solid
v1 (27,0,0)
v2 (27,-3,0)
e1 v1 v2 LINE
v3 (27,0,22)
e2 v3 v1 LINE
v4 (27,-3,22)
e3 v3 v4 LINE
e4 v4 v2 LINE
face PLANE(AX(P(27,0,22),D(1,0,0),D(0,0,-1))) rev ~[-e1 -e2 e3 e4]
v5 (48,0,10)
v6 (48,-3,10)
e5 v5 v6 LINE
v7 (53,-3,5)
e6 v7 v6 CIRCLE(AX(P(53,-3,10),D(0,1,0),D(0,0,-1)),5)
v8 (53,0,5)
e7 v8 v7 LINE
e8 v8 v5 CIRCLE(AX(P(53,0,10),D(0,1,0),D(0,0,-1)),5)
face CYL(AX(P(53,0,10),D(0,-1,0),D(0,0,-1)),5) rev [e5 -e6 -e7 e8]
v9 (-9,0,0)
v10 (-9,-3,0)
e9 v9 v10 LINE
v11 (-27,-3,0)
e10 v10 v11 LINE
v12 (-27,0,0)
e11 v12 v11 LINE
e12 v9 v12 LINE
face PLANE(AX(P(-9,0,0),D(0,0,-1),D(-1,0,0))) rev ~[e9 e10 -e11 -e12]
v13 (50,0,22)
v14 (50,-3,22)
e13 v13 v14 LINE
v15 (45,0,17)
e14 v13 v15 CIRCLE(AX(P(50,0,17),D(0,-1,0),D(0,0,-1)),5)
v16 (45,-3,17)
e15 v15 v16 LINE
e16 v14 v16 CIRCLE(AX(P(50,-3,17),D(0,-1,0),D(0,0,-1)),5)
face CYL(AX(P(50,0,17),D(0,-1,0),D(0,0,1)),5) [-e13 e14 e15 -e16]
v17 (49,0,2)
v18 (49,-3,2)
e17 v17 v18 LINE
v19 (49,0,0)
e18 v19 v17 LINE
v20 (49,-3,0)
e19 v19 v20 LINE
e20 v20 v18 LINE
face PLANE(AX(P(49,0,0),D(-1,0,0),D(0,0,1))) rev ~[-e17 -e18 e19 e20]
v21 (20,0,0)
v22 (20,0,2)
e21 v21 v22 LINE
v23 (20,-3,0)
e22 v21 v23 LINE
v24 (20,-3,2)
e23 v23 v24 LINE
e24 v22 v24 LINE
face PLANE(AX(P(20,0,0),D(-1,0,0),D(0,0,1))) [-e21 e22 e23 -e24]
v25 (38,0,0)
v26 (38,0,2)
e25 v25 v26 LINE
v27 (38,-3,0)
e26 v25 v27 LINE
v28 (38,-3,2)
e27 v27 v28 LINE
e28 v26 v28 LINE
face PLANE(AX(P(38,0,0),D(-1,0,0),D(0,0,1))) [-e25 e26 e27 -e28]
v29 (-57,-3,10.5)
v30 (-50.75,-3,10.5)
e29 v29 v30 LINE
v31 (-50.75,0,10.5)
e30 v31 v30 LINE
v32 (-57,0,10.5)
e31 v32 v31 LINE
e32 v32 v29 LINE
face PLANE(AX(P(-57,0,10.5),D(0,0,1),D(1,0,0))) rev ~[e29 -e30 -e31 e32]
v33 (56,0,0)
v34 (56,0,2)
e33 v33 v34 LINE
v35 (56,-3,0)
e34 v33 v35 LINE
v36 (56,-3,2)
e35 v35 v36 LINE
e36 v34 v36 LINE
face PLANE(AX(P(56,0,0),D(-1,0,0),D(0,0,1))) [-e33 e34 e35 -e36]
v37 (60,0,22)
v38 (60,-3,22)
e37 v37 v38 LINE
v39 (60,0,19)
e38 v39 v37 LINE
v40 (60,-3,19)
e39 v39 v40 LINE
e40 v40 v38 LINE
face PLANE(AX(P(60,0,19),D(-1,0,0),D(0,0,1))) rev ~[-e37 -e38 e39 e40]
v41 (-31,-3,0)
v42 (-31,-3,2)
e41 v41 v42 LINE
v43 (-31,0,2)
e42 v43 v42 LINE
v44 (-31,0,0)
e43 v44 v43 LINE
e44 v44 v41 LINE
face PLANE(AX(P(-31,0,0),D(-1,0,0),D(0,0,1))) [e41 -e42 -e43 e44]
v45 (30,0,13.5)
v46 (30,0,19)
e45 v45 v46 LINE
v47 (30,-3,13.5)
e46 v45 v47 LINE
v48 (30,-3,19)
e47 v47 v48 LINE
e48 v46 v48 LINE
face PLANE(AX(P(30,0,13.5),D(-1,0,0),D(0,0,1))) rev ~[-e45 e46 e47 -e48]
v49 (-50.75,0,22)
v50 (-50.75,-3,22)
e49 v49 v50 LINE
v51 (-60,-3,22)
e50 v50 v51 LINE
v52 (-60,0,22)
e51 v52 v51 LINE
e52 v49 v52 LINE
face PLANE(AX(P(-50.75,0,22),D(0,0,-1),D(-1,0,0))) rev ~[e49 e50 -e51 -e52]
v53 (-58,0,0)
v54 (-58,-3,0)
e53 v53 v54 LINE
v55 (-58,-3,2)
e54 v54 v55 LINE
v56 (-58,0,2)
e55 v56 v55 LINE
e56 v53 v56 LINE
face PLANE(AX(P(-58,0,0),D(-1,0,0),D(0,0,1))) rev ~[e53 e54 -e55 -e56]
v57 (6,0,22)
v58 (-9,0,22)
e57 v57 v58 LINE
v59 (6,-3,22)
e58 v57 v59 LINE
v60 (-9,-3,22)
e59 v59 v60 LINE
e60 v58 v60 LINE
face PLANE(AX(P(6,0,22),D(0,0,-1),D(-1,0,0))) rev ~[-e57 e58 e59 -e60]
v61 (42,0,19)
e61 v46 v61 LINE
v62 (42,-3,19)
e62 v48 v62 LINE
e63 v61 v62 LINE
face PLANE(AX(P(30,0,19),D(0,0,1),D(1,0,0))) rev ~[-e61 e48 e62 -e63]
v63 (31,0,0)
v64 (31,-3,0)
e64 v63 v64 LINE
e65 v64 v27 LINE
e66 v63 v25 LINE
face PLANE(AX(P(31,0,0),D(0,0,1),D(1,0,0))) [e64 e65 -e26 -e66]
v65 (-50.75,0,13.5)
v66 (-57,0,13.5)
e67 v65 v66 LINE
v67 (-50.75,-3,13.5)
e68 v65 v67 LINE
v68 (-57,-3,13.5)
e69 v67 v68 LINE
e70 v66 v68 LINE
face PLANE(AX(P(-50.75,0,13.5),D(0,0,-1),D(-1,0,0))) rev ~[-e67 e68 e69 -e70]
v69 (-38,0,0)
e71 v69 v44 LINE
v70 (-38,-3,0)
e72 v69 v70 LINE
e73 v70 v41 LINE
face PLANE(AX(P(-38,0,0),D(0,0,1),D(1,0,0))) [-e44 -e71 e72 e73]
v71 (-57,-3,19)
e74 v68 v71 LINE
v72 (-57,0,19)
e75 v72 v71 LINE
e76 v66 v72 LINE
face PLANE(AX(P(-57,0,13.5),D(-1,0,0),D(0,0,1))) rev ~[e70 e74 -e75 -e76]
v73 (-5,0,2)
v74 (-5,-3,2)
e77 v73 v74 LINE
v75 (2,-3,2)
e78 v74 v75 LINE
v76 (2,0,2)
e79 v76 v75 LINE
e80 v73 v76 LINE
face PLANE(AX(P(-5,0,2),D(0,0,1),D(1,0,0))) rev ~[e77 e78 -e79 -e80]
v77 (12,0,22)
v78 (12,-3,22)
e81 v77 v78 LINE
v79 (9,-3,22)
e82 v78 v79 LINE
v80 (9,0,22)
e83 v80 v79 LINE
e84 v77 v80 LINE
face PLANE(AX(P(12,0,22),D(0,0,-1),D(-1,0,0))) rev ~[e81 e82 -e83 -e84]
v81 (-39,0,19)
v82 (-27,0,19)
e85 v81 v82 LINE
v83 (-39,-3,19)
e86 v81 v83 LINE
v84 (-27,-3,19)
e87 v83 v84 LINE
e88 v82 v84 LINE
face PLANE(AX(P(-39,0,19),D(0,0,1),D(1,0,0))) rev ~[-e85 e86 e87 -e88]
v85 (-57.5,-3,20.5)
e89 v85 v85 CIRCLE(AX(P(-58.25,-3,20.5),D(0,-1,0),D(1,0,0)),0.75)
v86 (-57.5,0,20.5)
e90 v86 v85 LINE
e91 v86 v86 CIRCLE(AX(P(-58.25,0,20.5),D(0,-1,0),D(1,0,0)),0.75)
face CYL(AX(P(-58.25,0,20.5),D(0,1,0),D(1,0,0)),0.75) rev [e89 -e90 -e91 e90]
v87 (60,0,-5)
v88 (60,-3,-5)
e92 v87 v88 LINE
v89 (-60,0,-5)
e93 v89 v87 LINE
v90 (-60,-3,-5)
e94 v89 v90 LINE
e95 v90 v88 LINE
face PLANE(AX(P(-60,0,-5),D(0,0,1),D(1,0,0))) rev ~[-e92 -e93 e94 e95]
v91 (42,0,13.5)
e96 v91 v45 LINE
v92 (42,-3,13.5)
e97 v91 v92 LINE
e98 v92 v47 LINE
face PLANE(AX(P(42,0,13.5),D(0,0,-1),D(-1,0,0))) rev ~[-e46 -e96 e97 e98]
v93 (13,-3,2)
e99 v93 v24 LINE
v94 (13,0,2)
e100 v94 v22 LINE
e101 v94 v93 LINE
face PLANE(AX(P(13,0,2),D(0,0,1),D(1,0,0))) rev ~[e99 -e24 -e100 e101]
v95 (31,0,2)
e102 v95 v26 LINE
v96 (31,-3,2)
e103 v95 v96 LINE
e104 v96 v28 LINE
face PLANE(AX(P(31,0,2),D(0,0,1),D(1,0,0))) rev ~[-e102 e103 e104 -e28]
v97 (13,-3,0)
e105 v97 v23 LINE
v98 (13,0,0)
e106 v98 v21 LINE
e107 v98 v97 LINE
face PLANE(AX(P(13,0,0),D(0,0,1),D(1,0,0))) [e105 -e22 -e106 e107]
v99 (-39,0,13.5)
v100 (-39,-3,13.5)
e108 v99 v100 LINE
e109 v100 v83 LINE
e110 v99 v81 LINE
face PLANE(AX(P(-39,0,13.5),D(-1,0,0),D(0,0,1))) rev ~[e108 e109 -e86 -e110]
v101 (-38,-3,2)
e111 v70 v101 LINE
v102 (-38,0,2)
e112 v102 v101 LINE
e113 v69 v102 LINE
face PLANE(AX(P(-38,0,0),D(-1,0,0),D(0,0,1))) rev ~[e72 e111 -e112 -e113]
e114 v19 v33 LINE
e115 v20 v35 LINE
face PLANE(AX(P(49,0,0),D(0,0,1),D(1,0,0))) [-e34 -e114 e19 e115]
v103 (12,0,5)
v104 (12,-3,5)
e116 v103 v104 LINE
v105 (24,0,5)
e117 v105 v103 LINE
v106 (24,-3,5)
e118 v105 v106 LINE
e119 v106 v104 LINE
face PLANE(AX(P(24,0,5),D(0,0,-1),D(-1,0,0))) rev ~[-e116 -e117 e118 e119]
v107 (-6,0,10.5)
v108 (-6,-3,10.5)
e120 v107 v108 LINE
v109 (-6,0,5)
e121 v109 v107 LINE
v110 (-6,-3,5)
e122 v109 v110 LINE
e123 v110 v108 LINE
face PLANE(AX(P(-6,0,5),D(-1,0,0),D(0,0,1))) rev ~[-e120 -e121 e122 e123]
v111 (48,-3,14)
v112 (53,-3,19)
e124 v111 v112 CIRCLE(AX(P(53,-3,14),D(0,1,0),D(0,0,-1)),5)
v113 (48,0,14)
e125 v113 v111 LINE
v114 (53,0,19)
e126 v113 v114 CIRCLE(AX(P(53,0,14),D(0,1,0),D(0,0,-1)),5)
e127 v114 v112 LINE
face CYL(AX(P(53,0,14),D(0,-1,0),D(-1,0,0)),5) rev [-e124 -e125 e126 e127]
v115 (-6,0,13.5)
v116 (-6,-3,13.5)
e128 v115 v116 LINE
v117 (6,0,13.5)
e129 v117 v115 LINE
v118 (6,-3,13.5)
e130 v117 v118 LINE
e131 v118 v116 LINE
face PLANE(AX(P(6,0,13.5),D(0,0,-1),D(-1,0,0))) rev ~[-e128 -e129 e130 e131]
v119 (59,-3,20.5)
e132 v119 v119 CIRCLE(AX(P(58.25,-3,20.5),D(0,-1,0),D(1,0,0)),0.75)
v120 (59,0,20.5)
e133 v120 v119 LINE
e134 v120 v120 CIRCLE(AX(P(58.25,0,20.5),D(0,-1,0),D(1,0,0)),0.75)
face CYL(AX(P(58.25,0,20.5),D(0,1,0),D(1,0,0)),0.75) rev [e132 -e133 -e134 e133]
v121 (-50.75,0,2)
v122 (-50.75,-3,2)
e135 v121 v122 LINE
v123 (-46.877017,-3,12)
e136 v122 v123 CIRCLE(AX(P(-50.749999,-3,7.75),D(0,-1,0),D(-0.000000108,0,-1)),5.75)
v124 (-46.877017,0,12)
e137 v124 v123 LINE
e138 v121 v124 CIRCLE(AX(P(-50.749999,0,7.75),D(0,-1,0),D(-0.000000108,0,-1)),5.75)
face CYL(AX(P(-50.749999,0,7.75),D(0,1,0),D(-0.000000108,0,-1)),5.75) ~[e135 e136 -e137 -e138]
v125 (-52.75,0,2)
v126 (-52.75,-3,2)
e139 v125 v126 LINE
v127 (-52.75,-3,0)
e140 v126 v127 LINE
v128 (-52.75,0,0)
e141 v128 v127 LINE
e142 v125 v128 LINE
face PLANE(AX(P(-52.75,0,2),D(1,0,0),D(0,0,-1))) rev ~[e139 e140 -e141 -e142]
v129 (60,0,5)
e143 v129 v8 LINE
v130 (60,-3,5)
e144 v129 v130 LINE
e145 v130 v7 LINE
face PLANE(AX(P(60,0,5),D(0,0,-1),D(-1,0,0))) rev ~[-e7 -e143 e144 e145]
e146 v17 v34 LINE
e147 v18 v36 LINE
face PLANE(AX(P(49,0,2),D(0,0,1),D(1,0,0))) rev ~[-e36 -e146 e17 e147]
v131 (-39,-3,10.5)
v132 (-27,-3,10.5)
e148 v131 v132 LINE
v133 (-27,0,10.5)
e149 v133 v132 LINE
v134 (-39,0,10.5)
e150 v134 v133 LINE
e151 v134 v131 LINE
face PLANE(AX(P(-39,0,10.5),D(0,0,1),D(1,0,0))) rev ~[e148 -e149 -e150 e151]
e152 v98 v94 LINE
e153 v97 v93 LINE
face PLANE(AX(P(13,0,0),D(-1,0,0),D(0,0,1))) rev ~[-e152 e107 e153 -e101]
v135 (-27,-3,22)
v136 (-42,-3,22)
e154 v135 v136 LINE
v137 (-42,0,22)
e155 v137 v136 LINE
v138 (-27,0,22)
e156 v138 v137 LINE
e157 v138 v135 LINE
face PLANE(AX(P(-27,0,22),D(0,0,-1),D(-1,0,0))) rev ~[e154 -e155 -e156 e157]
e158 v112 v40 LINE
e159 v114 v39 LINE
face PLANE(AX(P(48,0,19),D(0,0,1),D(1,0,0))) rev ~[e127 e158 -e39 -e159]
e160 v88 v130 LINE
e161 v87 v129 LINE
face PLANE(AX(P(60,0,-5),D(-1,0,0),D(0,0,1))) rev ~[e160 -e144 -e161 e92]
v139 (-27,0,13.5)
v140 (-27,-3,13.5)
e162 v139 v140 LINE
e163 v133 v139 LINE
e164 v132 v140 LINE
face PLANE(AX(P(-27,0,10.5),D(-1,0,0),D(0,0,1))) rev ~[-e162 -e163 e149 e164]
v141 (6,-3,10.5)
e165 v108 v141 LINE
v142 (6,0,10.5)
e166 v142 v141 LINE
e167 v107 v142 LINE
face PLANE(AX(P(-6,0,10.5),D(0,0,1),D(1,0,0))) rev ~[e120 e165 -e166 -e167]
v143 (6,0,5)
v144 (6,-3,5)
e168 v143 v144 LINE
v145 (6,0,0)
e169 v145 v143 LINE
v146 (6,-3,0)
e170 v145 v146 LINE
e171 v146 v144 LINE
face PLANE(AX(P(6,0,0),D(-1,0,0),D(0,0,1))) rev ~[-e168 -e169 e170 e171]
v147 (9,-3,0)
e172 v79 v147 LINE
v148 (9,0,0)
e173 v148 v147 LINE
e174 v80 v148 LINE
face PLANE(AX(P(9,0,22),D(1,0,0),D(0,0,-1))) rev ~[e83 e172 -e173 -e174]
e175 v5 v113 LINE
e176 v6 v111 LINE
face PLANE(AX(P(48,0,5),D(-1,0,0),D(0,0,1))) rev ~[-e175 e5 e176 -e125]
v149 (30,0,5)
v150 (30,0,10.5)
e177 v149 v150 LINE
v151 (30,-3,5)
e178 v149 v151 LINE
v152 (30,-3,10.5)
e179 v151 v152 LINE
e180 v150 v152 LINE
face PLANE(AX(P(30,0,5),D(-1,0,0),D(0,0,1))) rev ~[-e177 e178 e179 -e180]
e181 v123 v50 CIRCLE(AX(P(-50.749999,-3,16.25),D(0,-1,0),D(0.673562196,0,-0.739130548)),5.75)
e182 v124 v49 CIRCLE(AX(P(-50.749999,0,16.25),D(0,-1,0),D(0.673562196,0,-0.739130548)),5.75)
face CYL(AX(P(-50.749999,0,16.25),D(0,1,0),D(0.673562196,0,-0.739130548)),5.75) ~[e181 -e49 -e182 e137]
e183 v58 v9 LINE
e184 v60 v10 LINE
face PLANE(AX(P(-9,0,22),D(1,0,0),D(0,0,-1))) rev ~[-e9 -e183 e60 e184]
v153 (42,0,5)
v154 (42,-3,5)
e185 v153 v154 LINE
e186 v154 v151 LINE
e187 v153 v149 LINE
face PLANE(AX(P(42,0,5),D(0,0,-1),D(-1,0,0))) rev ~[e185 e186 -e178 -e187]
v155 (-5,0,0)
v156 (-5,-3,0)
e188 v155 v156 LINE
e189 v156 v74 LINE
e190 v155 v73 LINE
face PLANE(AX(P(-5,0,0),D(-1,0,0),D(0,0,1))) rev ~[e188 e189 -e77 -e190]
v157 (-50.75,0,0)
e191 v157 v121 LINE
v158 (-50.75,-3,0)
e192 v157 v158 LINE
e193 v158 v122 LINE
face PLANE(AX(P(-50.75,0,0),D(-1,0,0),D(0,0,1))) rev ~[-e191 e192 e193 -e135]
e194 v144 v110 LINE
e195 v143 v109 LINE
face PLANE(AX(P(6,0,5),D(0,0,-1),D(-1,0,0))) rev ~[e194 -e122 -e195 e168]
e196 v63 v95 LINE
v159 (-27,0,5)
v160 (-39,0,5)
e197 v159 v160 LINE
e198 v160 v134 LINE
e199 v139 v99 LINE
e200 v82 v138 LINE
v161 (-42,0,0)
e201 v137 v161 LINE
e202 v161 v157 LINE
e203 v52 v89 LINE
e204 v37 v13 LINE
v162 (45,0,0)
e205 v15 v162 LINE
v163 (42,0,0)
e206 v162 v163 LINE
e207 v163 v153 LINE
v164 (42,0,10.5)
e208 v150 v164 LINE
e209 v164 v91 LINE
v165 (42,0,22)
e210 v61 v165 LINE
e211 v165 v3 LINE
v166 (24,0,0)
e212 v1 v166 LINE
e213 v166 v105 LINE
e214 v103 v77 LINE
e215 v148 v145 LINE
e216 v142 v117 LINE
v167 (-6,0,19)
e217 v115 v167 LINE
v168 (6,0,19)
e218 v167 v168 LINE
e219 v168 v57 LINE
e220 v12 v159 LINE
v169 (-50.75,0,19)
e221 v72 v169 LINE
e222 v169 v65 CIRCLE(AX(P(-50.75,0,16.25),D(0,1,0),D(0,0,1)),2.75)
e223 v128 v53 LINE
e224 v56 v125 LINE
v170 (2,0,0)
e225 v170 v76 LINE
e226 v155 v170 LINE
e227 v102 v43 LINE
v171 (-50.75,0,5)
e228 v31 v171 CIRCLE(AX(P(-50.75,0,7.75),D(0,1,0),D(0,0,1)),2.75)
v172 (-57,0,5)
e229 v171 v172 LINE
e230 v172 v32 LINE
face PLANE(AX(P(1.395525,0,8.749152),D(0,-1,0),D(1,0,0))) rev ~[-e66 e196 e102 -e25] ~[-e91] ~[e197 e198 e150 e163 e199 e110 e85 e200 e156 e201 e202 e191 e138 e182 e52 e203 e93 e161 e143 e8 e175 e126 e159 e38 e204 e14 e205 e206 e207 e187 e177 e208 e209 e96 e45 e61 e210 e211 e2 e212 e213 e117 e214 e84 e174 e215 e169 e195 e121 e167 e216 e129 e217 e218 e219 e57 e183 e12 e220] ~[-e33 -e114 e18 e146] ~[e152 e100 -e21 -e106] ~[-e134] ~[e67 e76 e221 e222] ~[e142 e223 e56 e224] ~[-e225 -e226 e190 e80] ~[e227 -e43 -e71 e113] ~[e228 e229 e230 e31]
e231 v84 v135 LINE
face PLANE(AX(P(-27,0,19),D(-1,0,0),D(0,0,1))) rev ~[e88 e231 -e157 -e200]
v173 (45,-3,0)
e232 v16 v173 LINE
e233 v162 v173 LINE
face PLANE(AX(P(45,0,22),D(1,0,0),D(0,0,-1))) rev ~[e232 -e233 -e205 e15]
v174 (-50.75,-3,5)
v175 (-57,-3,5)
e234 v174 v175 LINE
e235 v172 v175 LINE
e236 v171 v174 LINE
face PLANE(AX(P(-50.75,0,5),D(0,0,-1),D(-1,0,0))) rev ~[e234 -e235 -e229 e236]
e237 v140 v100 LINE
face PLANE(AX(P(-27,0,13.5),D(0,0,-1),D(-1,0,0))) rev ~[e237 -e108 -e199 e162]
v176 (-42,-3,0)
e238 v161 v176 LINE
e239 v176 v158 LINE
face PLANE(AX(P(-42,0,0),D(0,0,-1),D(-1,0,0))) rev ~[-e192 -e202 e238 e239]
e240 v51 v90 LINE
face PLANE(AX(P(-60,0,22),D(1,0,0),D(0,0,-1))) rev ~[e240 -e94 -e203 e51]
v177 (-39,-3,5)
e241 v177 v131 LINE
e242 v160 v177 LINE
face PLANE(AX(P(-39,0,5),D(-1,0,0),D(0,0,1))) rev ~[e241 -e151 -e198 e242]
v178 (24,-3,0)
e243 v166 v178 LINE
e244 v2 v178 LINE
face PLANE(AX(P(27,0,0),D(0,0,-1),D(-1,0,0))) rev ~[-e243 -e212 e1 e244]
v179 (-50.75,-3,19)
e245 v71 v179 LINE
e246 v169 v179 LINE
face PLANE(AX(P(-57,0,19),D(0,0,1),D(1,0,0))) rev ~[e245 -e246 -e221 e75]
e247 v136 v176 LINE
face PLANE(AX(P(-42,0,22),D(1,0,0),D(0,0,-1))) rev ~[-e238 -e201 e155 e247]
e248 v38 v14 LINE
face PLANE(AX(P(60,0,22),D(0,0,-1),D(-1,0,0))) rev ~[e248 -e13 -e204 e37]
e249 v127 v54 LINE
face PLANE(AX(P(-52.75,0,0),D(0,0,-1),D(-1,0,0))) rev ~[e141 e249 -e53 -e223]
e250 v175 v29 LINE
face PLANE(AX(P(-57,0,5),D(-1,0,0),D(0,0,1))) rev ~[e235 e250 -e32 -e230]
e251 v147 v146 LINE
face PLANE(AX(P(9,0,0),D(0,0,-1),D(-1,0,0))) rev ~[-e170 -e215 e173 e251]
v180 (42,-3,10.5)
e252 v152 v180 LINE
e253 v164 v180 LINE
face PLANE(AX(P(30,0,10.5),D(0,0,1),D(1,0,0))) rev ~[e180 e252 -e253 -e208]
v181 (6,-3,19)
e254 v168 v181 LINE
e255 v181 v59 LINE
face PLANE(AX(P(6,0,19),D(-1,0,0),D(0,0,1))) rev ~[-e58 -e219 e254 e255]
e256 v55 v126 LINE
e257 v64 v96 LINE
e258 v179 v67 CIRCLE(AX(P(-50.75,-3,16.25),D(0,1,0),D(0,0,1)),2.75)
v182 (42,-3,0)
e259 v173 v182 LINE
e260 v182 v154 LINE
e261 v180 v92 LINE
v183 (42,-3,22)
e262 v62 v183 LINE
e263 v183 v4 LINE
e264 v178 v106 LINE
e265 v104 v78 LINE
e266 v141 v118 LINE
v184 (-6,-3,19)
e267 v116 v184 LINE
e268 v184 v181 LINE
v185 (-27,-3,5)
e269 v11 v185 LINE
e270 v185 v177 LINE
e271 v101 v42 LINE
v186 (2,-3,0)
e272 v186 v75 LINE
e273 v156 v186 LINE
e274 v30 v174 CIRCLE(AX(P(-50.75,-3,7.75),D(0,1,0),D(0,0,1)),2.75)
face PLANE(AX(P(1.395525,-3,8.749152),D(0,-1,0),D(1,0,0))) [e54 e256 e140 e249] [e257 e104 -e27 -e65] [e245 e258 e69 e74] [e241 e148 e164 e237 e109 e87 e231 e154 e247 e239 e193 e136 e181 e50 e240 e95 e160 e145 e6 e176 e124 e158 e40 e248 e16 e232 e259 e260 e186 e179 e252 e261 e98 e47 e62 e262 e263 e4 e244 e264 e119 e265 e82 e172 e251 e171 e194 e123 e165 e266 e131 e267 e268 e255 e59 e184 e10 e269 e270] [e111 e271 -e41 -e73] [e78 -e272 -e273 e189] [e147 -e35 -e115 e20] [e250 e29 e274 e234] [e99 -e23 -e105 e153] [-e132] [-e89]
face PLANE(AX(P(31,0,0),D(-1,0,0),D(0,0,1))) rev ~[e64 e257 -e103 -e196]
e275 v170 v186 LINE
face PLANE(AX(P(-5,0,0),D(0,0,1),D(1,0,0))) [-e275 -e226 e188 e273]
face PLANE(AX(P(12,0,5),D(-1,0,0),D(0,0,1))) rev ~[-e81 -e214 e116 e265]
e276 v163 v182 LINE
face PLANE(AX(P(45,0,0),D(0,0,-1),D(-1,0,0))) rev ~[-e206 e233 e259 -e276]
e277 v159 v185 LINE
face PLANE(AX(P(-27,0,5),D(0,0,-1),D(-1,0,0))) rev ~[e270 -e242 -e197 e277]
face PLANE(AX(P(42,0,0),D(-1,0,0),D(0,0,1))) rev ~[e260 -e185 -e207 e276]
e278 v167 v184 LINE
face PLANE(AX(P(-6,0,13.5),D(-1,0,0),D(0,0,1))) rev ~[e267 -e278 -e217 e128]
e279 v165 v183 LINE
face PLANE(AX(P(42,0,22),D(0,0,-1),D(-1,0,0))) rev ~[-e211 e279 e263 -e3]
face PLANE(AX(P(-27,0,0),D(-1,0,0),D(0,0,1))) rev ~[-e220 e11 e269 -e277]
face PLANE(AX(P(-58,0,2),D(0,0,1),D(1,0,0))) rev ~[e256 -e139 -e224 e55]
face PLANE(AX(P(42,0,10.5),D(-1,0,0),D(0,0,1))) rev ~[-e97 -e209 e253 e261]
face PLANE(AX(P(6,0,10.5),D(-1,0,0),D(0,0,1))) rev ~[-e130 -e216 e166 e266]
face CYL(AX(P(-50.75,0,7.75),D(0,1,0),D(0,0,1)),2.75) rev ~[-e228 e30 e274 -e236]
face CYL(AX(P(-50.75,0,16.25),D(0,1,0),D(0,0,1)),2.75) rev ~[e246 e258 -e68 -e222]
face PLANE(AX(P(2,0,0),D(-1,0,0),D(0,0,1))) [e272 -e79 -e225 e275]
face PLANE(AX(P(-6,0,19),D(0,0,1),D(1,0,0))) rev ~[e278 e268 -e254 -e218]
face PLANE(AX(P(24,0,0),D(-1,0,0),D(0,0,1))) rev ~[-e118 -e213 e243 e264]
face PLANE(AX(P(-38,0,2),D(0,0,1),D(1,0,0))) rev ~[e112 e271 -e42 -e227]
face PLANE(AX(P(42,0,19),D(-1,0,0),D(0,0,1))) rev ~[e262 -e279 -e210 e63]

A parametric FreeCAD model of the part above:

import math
import FreeCAD as App
import Part
import Sketcher
from FreeCAD import Vector


def edges_at(feature, points):
    """Names of the edges that pass closest to the given points."""
    edges = feature.Shape.Edges
    near = lambda p: min(range(len(edges)), key=lambda i: edges[i].distToShape(Part.Vertex(*p))[0])
    return sorted({f"Edge{near(p) + 1}" for p in points})

doc = App.newDocument("Part")
body = doc.addObject("PartDesign::Body", "Body")

# Sketch on XZ plane
sketch1 = doc.addObject("Sketcher::SketchObject", "Sketch")
body.addObject(sketch1)
sketch1.AttachmentSupport = (doc.XZ_Plane, [""])
sketch1.MapMode = "FlatFace"
sketch1.addGeometry(Part.LineSegment(Vector(-60, -5, 0), Vector(60, -5, 0)), False)
sketch1.addGeometry(Part.LineSegment(Vector(60, -5, 0), Vector(60, 5, 0)), False)
sketch1.addGeometry(Part.LineSegment(Vector(60, 5, 0), Vector(48, 5, 0)), False)
sketch1.addGeometry(Part.LineSegment(Vector(48, 5, 0), Vector(48, 19, 0)), False)
sketch1.addGeometry(Part.LineSegment(Vector(48, 19, 0), Vector(60, 19, 0)), False)
sketch1.addGeometry(Part.LineSegment(Vector(60, 19, 0), Vector(60, 22, 0)), False)
sketch1.addGeometry(Part.LineSegment(Vector(60, 22, 0), Vector(45, 22, 0)), False)
sketch1.addGeometry(Part.LineSegment(Vector(45, 22, 0), Vector(45, 0, 0)), False)
sketch1.addGeometry(Part.LineSegment(Vector(45, 0, 0), Vector(42, 0, 0)), False)
sketch1.addGeometry(Part.LineSegment(Vector(42, 0, 0), Vector(42, 5, 0)), False)
sketch1.addGeometry(Part.LineSegment(Vector(42, 5, 0), Vector(30, 5, 0)), False)
sketch1.addGeometry(Part.LineSegment(Vector(30, 5, 0), Vector(30, 10.5, 0)), False)
sketch1.addGeometry(Part.LineSegment(Vector(30, 10.5, 0), Vector(42, 10.5, 0)), False)
sketch1.addGeometry(Part.LineSegment(Vector(42, 10.5, 0), Vector(42, 13.5, 0)), False)
sketch1.addGeometry(Part.LineSegment(Vector(42, 13.5, 0), Vector(30, 13.5, 0)), False)
sketch1.addGeometry(Part.LineSegment(Vector(30, 13.5, 0), Vector(30, 19, 0)), False)
sketch1.addGeometry(Part.LineSegment(Vector(30, 19, 0), Vector(42, 19, 0)), False)
sketch1.addGeometry(Part.LineSegment(Vector(42, 19, 0), Vector(42, 22, 0)), False)
sketch1.addGeometry(Part.LineSegment(Vector(42, 22, 0), Vector(27, 22, 0)), False)
sketch1.addGeometry(Part.LineSegment(Vector(27, 22, 0), Vector(27, 0, 0)), False)
sketch1.addGeometry(Part.LineSegment(Vector(27, 0, 0), Vector(24, 0, 0)), False)
sketch1.addGeometry(Part.LineSegment(Vector(24, 0, 0), Vector(24, 5, 0)), False)
sketch1.addGeometry(Part.LineSegment(Vector(24, 5, 0), Vector(12, 5, 0)), False)
sketch1.addGeometry(Part.LineSegment(Vector(12, 5, 0), Vector(12, 22, 0)), False)
sketch1.addGeometry(Part.LineSegment(Vector(12, 22, 0), Vector(9, 22, 0)), False)
sketch1.addGeometry(Part.LineSegment(Vector(9, 22, 0), Vector(9, 0, 0)), False)
sketch1.addGeometry(Part.LineSegment(Vector(9, 0, 0), Vector(6, 0, 0)), False)
sketch1.addGeometry(Part.LineSegment(Vector(6, 0, 0), Vector(6, 5, 0)), False)
sketch1.addGeometry(Part.LineSegment(Vector(6, 5, 0), Vector(-6, 5, 0)), False)
sketch1.addGeometry(Part.LineSegment(Vector(-6, 5, 0), Vector(-6, 10.5, 0)), False)
sketch1.addGeometry(Part.LineSegment(Vector(-6, 10.5, 0), Vector(6, 10.5, 0)), False)
sketch1.addGeometry(Part.LineSegment(Vector(6, 10.5, 0), Vector(6, 13.5, 0)), False)
sketch1.addGeometry(Part.LineSegment(Vector(6, 13.5, 0), Vector(-6, 13.5, 0)), False)
sketch1.addGeometry(Part.LineSegment(Vector(-6, 13.5, 0), Vector(-6, 19, 0)), False)
sketch1.addGeometry(Part.LineSegment(Vector(-6, 19, 0), Vector(6, 19, 0)), False)
sketch1.addGeometry(Part.LineSegment(Vector(6, 19, 0), Vector(6, 22, 0)), False)
sketch1.addGeometry(Part.LineSegment(Vector(6, 22, 0), Vector(-9, 22, 0)), False)
sketch1.addGeometry(Part.LineSegment(Vector(-9, 22, 0), Vector(-9, 0, 0)), False)
sketch1.addGeometry(Part.LineSegment(Vector(-9, 0, 0), Vector(-27, 0, 0)), False)
sketch1.addGeometry(Part.LineSegment(Vector(-27, 0, 0), Vector(-27, 5, 0)), False)
sketch1.addGeometry(Part.LineSegment(Vector(-27, 5, 0), Vector(-39, 5, 0)), False)
sketch1.addGeometry(Part.LineSegment(Vector(-39, 5, 0), Vector(-39, 10.5, 0)), False)
sketch1.addGeometry(Part.LineSegment(Vector(-39, 10.5, 0), Vector(-27, 10.5, 0)), False)
sketch1.addGeometry(Part.LineSegment(Vector(-27, 10.5, 0), Vector(-27, 13.5, 0)), False)
sketch1.addGeometry(Part.LineSegment(Vector(-27, 13.5, 0), Vector(-39, 13.5, 0)), False)
sketch1.addGeometry(Part.LineSegment(Vector(-39, 13.5, 0), Vector(-39, 19, 0)), False)
sketch1.addGeometry(Part.LineSegment(Vector(-39, 19, 0), Vector(-27, 19, 0)), False)
sketch1.addGeometry(Part.LineSegment(Vector(-27, 19, 0), Vector(-27, 22, 0)), False)
sketch1.addGeometry(Part.LineSegment(Vector(-27, 22, 0), Vector(-42, 22, 0)), False)
sketch1.addGeometry(Part.LineSegment(Vector(-42, 22, 0), Vector(-42, 0, 0)), False)
sketch1.addGeometry(Part.LineSegment(Vector(-42, 0, 0), Vector(-50.75, 0, 0)), False)
sketch1.addGeometry(Part.LineSegment(Vector(-50.75, 0, 0), Vector(-50.75, 2, 0)), False)
sketch1.addGeometry(Part.ArcOfCircle(Part.Circle(Vector(-50.749999, 7.75, 0), Vector(0, 0, 1), 5.75), math.radians(-90.000006), math.radians(47.657404)), False)
sketch1.addGeometry(Part.ArcOfCircle(Part.Circle(Vector(-50.749999, 16.25, 0), Vector(0, 0, 1), 5.75), math.radians(-47.657404), math.radians(90.000006)), False)
sketch1.addGeometry(Part.LineSegment(Vector(-50.75, 22, 0), Vector(-60, 22, 0)), False)
sketch1.addGeometry(Part.LineSegment(Vector(-60, 22, 0), Vector(-60, -5, 0)), False)
sketch1.addGeometry(Part.LineSegment(Vector(-52.75, 2, 0), Vector(-52.75, 0, 0)), False)
sketch1.addGeometry(Part.LineSegment(Vector(-52.75, 0, 0), Vector(-58, 0, 0)), False)
sketch1.addGeometry(Part.LineSegment(Vector(-58, 0, 0), Vector(-58, 2, 0)), False)
sketch1.addGeometry(Part.LineSegment(Vector(-58, 2, 0), Vector(-52.75, 2, 0)), False)
sketch1.addGeometry(Part.LineSegment(Vector(-31, 0, 0), Vector(-38, 0, 0)), False)
sketch1.addGeometry(Part.LineSegment(Vector(-38, 0, 0), Vector(-38, 2, 0)), False)
sketch1.addGeometry(Part.LineSegment(Vector(-38, 2, 0), Vector(-31, 2, 0)), False)
sketch1.addGeometry(Part.LineSegment(Vector(-31, 2, 0), Vector(-31, 0, 0)), False)
sketch1.addGeometry(Part.LineSegment(Vector(2, 0, 0), Vector(-5, 0, 0)), False)
sketch1.addGeometry(Part.LineSegment(Vector(-5, 0, 0), Vector(-5, 2, 0)), False)
sketch1.addGeometry(Part.LineSegment(Vector(-5, 2, 0), Vector(2, 2, 0)), False)
sketch1.addGeometry(Part.LineSegment(Vector(2, 2, 0), Vector(2, 0, 0)), False)
sketch1.addGeometry(Part.LineSegment(Vector(-57, 5, 0), Vector(-57, 10.5, 0)), False)
sketch1.addGeometry(Part.LineSegment(Vector(-57, 10.5, 0), Vector(-50.75, 10.5, 0)), False)
sketch1.addGeometry(Part.ArcOfCircle(Part.Circle(Vector(-50.75, 7.75, 0), Vector(0, 0, 1), 2.75), math.radians(-90), math.radians(90)), False)
sketch1.addGeometry(Part.LineSegment(Vector(-50.75, 5, 0), Vector(-57, 5, 0)), False)
sketch1.addGeometry(Part.LineSegment(Vector(20, 0, 0), Vector(13, 0, 0)), False)
sketch1.addGeometry(Part.LineSegment(Vector(13, 0, 0), Vector(13, 2, 0)), False)
sketch1.addGeometry(Part.LineSegment(Vector(13, 2, 0), Vector(20, 2, 0)), False)
sketch1.addGeometry(Part.LineSegment(Vector(20, 2, 0), Vector(20, 0, 0)), False)
sketch1.addGeometry(Part.LineSegment(Vector(38, 0, 0), Vector(31, 0, 0)), False)
sketch1.addGeometry(Part.LineSegment(Vector(31, 0, 0), Vector(31, 2, 0)), False)
sketch1.addGeometry(Part.LineSegment(Vector(31, 2, 0), Vector(38, 2, 0)), False)
sketch1.addGeometry(Part.LineSegment(Vector(38, 2, 0), Vector(38, 0, 0)), False)
sketch1.addGeometry(Part.LineSegment(Vector(56, 0, 0), Vector(49, 0, 0)), False)
sketch1.addGeometry(Part.LineSegment(Vector(49, 0, 0), Vector(49, 2, 0)), False)
sketch1.addGeometry(Part.LineSegment(Vector(49, 2, 0), Vector(56, 2, 0)), False)
sketch1.addGeometry(Part.LineSegment(Vector(56, 2, 0), Vector(56, 0, 0)), False)
sketch1.addGeometry(Part.LineSegment(Vector(-57, 13.5, 0), Vector(-57, 19, 0)), False)
sketch1.addGeometry(Part.LineSegment(Vector(-57, 19, 0), Vector(-50.75, 19, 0)), False)
sketch1.addGeometry(Part.ArcOfCircle(Part.Circle(Vector(-50.75, 16.25, 0), Vector(0, 0, 1), 2.75), math.radians(-90), math.radians(90)), False)
sketch1.addGeometry(Part.LineSegment(Vector(-50.75, 13.5, 0), Vector(-57, 13.5, 0)), False)
sketch1.addGeometry(Part.Circle(Vector(-58.25, 20.5, 0), Vector(0, 0, 1), 0.75), False)
sketch1.addGeometry(Part.Circle(Vector(58.25, 20.5, 0), Vector(0, 0, 1), 0.75), False)
sketch1.addConstraint(Sketcher.Constraint("Coincident", 0, 2, 1, 1))
sketch1.addConstraint(Sketcher.Constraint("Coincident", 1, 2, 2, 1))
sketch1.addConstraint(Sketcher.Constraint("Coincident", 2, 2, 3, 1))
sketch1.addConstraint(Sketcher.Constraint("Coincident", 3, 2, 4, 1))
sketch1.addConstraint(Sketcher.Constraint("Coincident", 4, 2, 5, 1))
sketch1.addConstraint(Sketcher.Constraint("Coincident", 5, 2, 6, 1))
sketch1.addConstraint(Sketcher.Constraint("Coincident", 6, 2, 7, 1))
sketch1.addConstraint(Sketcher.Constraint("Coincident", 7, 2, 8, 1))
sketch1.addConstraint(Sketcher.Constraint("Coincident", 8, 2, 9, 1))
sketch1.addConstraint(Sketcher.Constraint("Coincident", 9, 2, 10, 1))
sketch1.addConstraint(Sketcher.Constraint("Coincident", 10, 2, 11, 1))
sketch1.addConstraint(Sketcher.Constraint("Coincident", 11, 2, 12, 1))
sketch1.addConstraint(Sketcher.Constraint("Coincident", 12, 2, 13, 1))
sketch1.addConstraint(Sketcher.Constraint("Coincident", 13, 2, 14, 1))
sketch1.addConstraint(Sketcher.Constraint("Coincident", 14, 2, 15, 1))
sketch1.addConstraint(Sketcher.Constraint("Coincident", 15, 2, 16, 1))
sketch1.addConstraint(Sketcher.Constraint("Coincident", 16, 2, 17, 1))
sketch1.addConstraint(Sketcher.Constraint("Coincident", 17, 2, 18, 1))
sketch1.addConstraint(Sketcher.Constraint("Coincident", 18, 2, 19, 1))
sketch1.addConstraint(Sketcher.Constraint("Coincident", 19, 2, 20, 1))
sketch1.addConstraint(Sketcher.Constraint("Coincident", 20, 2, 21, 1))
sketch1.addConstraint(Sketcher.Constraint("Coincident", 21, 2, 22, 1))
sketch1.addConstraint(Sketcher.Constraint("Coincident", 22, 2, 23, 1))
sketch1.addConstraint(Sketcher.Constraint("Coincident", 23, 2, 24, 1))
sketch1.addConstraint(Sketcher.Constraint("Coincident", 24, 2, 25, 1))
sketch1.addConstraint(Sketcher.Constraint("Coincident", 25, 2, 26, 1))
sketch1.addConstraint(Sketcher.Constraint("Coincident", 26, 2, 27, 1))
sketch1.addConstraint(Sketcher.Constraint("Coincident", 27, 2, 28, 1))
sketch1.addConstraint(Sketcher.Constraint("Coincident", 28, 2, 29, 1))
sketch1.addConstraint(Sketcher.Constraint("Coincident", 29, 2, 30, 1))
sketch1.addConstraint(Sketcher.Constraint("Coincident", 30, 2, 31, 1))
sketch1.addConstraint(Sketcher.Constraint("Coincident", 31, 2, 32, 1))
sketch1.addConstraint(Sketcher.Constraint("Coincident", 32, 2, 33, 1))
sketch1.addConstraint(Sketcher.Constraint("Coincident", 33, 2, 34, 1))
sketch1.addConstraint(Sketcher.Constraint("Coincident", 34, 2, 35, 1))
sketch1.addConstraint(Sketcher.Constraint("Coincident", 35, 2, 36, 1))
sketch1.addConstraint(Sketcher.Constraint("Coincident", 36, 2, 37, 1))
sketch1.addConstraint(Sketcher.Constraint("Coincident", 37, 2, 38, 1))
sketch1.addConstraint(Sketcher.Constraint("Coincident", 38, 2, 39, 1))
sketch1.addConstraint(Sketcher.Constraint("Coincident", 39, 2, 40, 1))
sketch1.addConstraint(Sketcher.Constraint("Coincident", 40, 2, 41, 1))
sketch1.addConstraint(Sketcher.Constraint("Coincident", 41, 2, 42, 1))
sketch1.addConstraint(Sketcher.Constraint("Coincident", 42, 2, 43, 1))
sketch1.addConstraint(Sketcher.Constraint("Coincident", 43, 2, 44, 1))
sketch1.addConstraint(Sketcher.Constraint("Coincident", 44, 2, 45, 1))
sketch1.addConstraint(Sketcher.Constraint("Coincident", 45, 2, 46, 1))
sketch1.addConstraint(Sketcher.Constraint("Coincident", 46, 2, 47, 1))
sketch1.addConstraint(Sketcher.Constraint("Coincident", 47, 2, 48, 1))
sketch1.addConstraint(Sketcher.Constraint("Coincident", 48, 2, 49, 1))
sketch1.addConstraint(Sketcher.Constraint("Coincident", 49, 2, 50, 1))
sketch1.addConstraint(Sketcher.Constraint("Coincident", 50, 2, 51, 1))
sketch1.addConstraint(Sketcher.Constraint("Coincident", 51, 2, 52, 1))
sketch1.addConstraint(Sketcher.Constraint("Coincident", 52, 2, 53, 1))
sketch1.addConstraint(Sketcher.Constraint("Tangent", 53, 2, 54, 1))
sketch1.addConstraint(Sketcher.Constraint("Coincident", 54, 2, 55, 1))
sketch1.addConstraint(Sketcher.Constraint("Coincident", 55, 2, 0, 1))
sketch1.addConstraint(Sketcher.Constraint("Coincident", 56, 2, 57, 1))
sketch1.addConstraint(Sketcher.Constraint("Coincident", 57, 2, 58, 1))
sketch1.addConstraint(Sketcher.Constraint("Coincident", 58, 2, 59, 1))
sketch1.addConstraint(Sketcher.Constraint("Coincident", 59, 2, 56, 1))
sketch1.addConstraint(Sketcher.Constraint("Coincident", 60, 2, 61, 1))
sketch1.addConstraint(Sketcher.Constraint("Coincident", 61, 2, 62, 1))
sketch1.addConstraint(Sketcher.Constraint("Coincident", 62, 2, 63, 1))
sketch1.addConstraint(Sketcher.Constraint("Coincident", 63, 2, 60, 1))
sketch1.addConstraint(Sketcher.Constraint("Coincident", 64, 2, 65, 1))
sketch1.addConstraint(Sketcher.Constraint("Coincident", 65, 2, 66, 1))
sketch1.addConstraint(Sketcher.Constraint("Coincident", 66, 2, 67, 1))
sketch1.addConstraint(Sketcher.Constraint("Coincident", 67, 2, 64, 1))
sketch1.addConstraint(Sketcher.Constraint("Coincident", 68, 2, 69, 1))
sketch1.addConstraint(Sketcher.Constraint("Tangent", 69, 2, 70, 2))
sketch1.addConstraint(Sketcher.Constraint("Tangent", 70, 1, 71, 1))
sketch1.addConstraint(Sketcher.Constraint("Coincident", 71, 2, 68, 1))
sketch1.addConstraint(Sketcher.Constraint("Coincident", 72, 2, 73, 1))
sketch1.addConstraint(Sketcher.Constraint("Coincident", 73, 2, 74, 1))
sketch1.addConstraint(Sketcher.Constraint("Coincident", 74, 2, 75, 1))
sketch1.addConstraint(Sketcher.Constraint("Coincident", 75, 2, 72, 1))
sketch1.addConstraint(Sketcher.Constraint("Coincident", 76, 2, 77, 1))
sketch1.addConstraint(Sketcher.Constraint("Coincident", 77, 2, 78, 1))
sketch1.addConstraint(Sketcher.Constraint("Coincident", 78, 2, 79, 1))
sketch1.addConstraint(Sketcher.Constraint("Coincident", 79, 2, 76, 1))
sketch1.addConstraint(Sketcher.Constraint("Coincident", 80, 2, 81, 1))
sketch1.addConstraint(Sketcher.Constraint("Coincident", 81, 2, 82, 1))
sketch1.addConstraint(Sketcher.Constraint("Coincident", 82, 2, 83, 1))
sketch1.addConstraint(Sketcher.Constraint("Coincident", 83, 2, 80, 1))
sketch1.addConstraint(Sketcher.Constraint("Coincident", 84, 2, 85, 1))
sketch1.addConstraint(Sketcher.Constraint("Tangent", 85, 2, 86, 2))
sketch1.addConstraint(Sketcher.Constraint("Tangent", 86, 1, 87, 1))
sketch1.addConstraint(Sketcher.Constraint("Coincident", 87, 2, 84, 1))
sketch1.addConstraint(Sketcher.Constraint("Horizontal", 0))
sketch1.addConstraint(Sketcher.Constraint("Vertical", 1))
sketch1.addConstraint(Sketcher.Constraint("Horizontal", 2))
sketch1.addConstraint(Sketcher.Constraint("Vertical", 3))
sketch1.addConstraint(Sketcher.Constraint("Horizontal", 4))
sketch1.addConstraint(Sketcher.Constraint("Vertical", 5))
sketch1.addConstraint(Sketcher.Constraint("Horizontal", 6))
sketch1.addConstraint(Sketcher.Constraint("Vertical", 7))
sketch1.addConstraint(Sketcher.Constraint("Horizontal", 8))
sketch1.addConstraint(Sketcher.Constraint("Vertical", 9))
sketch1.addConstraint(Sketcher.Constraint("Horizontal", 10))
sketch1.addConstraint(Sketcher.Constraint("Vertical", 11))
sketch1.addConstraint(Sketcher.Constraint("Horizontal", 12))
sketch1.addConstraint(Sketcher.Constraint("Vertical", 13))
sketch1.addConstraint(Sketcher.Constraint("Horizontal", 14))
sketch1.addConstraint(Sketcher.Constraint("Vertical", 15))
sketch1.addConstraint(Sketcher.Constraint("Horizontal", 16))
sketch1.addConstraint(Sketcher.Constraint("Vertical", 17))
sketch1.addConstraint(Sketcher.Constraint("Horizontal", 18))
sketch1.addConstraint(Sketcher.Constraint("Vertical", 19))
sketch1.addConstraint(Sketcher.Constraint("Horizontal", 20))
sketch1.addConstraint(Sketcher.Constraint("Vertical", 21))
sketch1.addConstraint(Sketcher.Constraint("Horizontal", 22))
sketch1.addConstraint(Sketcher.Constraint("Vertical", 23))
sketch1.addConstraint(Sketcher.Constraint("Horizontal", 24))
sketch1.addConstraint(Sketcher.Constraint("Vertical", 25))
sketch1.addConstraint(Sketcher.Constraint("Horizontal", 26))
sketch1.addConstraint(Sketcher.Constraint("Vertical", 27))
sketch1.addConstraint(Sketcher.Constraint("Horizontal", 28))
sketch1.addConstraint(Sketcher.Constraint("Vertical", 29))
sketch1.addConstraint(Sketcher.Constraint("Horizontal", 30))
sketch1.addConstraint(Sketcher.Constraint("Vertical", 31))
sketch1.addConstraint(Sketcher.Constraint("Horizontal", 32))
sketch1.addConstraint(Sketcher.Constraint("Vertical", 33))
sketch1.addConstraint(Sketcher.Constraint("Horizontal", 34))
sketch1.addConstraint(Sketcher.Constraint("Vertical", 35))
sketch1.addConstraint(Sketcher.Constraint("Horizontal", 36))
sketch1.addConstraint(Sketcher.Constraint("Vertical", 37))
sketch1.addConstraint(Sketcher.Constraint("Horizontal", 38))
sketch1.addConstraint(Sketcher.Constraint("Vertical", 39))
sketch1.addConstraint(Sketcher.Constraint("Horizontal", 40))
sketch1.addConstraint(Sketcher.Constraint("Vertical", 41))
sketch1.addConstraint(Sketcher.Constraint("Horizontal", 42))
sketch1.addConstraint(Sketcher.Constraint("Vertical", 43))
sketch1.addConstraint(Sketcher.Constraint("Horizontal", 44))
sketch1.addConstraint(Sketcher.Constraint("Vertical", 45))
sketch1.addConstraint(Sketcher.Constraint("Horizontal", 46))
sketch1.addConstraint(Sketcher.Constraint("Vertical", 47))
sketch1.addConstraint(Sketcher.Constraint("Horizontal", 48))
sketch1.addConstraint(Sketcher.Constraint("Vertical", 49))
sketch1.addConstraint(Sketcher.Constraint("Horizontal", 50))
sketch1.addConstraint(Sketcher.Constraint("Vertical", 51))
sketch1.addConstraint(Sketcher.Constraint("Horizontal", 54))
sketch1.addConstraint(Sketcher.Constraint("Vertical", 55))
sketch1.addConstraint(Sketcher.Constraint("Vertical", 56))
sketch1.addConstraint(Sketcher.Constraint("Horizontal", 57))
sketch1.addConstraint(Sketcher.Constraint("Vertical", 58))
sketch1.addConstraint(Sketcher.Constraint("Horizontal", 59))
sketch1.addConstraint(Sketcher.Constraint("Horizontal", 60))
sketch1.addConstraint(Sketcher.Constraint("Vertical", 61))
sketch1.addConstraint(Sketcher.Constraint("Horizontal", 62))
sketch1.addConstraint(Sketcher.Constraint("Vertical", 63))
sketch1.addConstraint(Sketcher.Constraint("Horizontal", 64))
sketch1.addConstraint(Sketcher.Constraint("Vertical", 65))
sketch1.addConstraint(Sketcher.Constraint("Horizontal", 66))
sketch1.addConstraint(Sketcher.Constraint("Vertical", 67))
sketch1.addConstraint(Sketcher.Constraint("Vertical", 68))
sketch1.addConstraint(Sketcher.Constraint("Horizontal", 69))
sketch1.addConstraint(Sketcher.Constraint("Horizontal", 71))
sketch1.addConstraint(Sketcher.Constraint("Horizontal", 72))
sketch1.addConstraint(Sketcher.Constraint("Vertical", 73))
sketch1.addConstraint(Sketcher.Constraint("Horizontal", 74))
sketch1.addConstraint(Sketcher.Constraint("Vertical", 75))
sketch1.addConstraint(Sketcher.Constraint("Horizontal", 76))
sketch1.addConstraint(Sketcher.Constraint("Vertical", 77))
sketch1.addConstraint(Sketcher.Constraint("Horizontal", 78))
sketch1.addConstraint(Sketcher.Constraint("Vertical", 79))
sketch1.addConstraint(Sketcher.Constraint("Horizontal", 80))
sketch1.addConstraint(Sketcher.Constraint("Vertical", 81))
sketch1.addConstraint(Sketcher.Constraint("Horizontal", 82))
sketch1.addConstraint(Sketcher.Constraint("Vertical", 83))
sketch1.addConstraint(Sketcher.Constraint("Vertical", 84))
sketch1.addConstraint(Sketcher.Constraint("Horizontal", 85))
sketch1.addConstraint(Sketcher.Constraint("Horizontal", 87))
sketch1.addConstraint(Sketcher.Constraint("Coincident", 70, 3, 52, 3))
sketch1.addConstraint(Sketcher.Constraint("Coincident", 86, 3, 53, 3))
sketch1.addConstraint(Sketcher.Constraint("Equal", 52, 53))
sketch1.addConstraint(Sketcher.Constraint("Equal", 70, 86))
sketch1.addConstraint(Sketcher.Constraint("Equal", 88, 89))
sketch1.addConstraint(Sketcher.Constraint("Symmetric", 25, 2, 37, 2, -1, 1))
sketch1.addConstraint(Sketcher.Constraint("Symmetric", 19, 2, 38, 2, -1, 1))
sketch1.addConstraint(Sketcher.Constraint("Symmetric", 8, 2, 49, 2, -1, 1))
sketch1.addConstraint(Sketcher.Constraint("Symmetric", 1, 2, 55, 2, -1, 1))
sketch1.addConstraint(Sketcher.Constraint("Symmetric", 63, 2, 76, 2, -1, 1))
sketch1.addConstraint(Sketcher.Constraint("Symmetric", 88, 3, 89, 3, -2))
sketch1.addConstraint(Sketcher.Constraint("Symmetric", 18, 2, 47, 2, -2))
sketch1.addConstraint(Sketcher.Constraint("Symmetric", 5, 2, 54, 2, -2))
sketch1.addConstraint(Sketcher.Constraint("Symmetric", 61, 2, 78, 2, -2))
sketch1.addConstraint(Sketcher.Constraint("PointOnObject", 7, 2, -1))
sketch1.addConstraint(Sketcher.Constraint("PointOnObject", 19, 2, -1))
sketch1.addConstraint(Sketcher.Constraint("PointOnObject", 56, 2, -1))
sketch1.addConstraint(Sketcher.Constraint("PointOnObject", 60, 2, -1))
sketch1.addConstraint(Sketcher.Constraint("PointOnObject", 64, 2, -1))
sketch1.addConstraint(Sketcher.Constraint("PointOnObject", 72, 2, -1))
sketch1.addConstraint(Sketcher.Constraint("PointOnObject", 80, 2, -1))
sketch1.addConstraint(Sketcher.Constraint("Horizontal", 2, 2, 9, 2))
sketch1.addConstraint(Sketcher.Constraint("Horizontal", 4, 2, 15, 2))
sketch1.addConstraint(Sketcher.Constraint("Horizontal", 6, 2, 17, 2))
sketch1.addConstraint(Sketcher.Constraint("Horizontal", 10, 2, 21, 2))
sketch1.addConstraint(Sketcher.Constraint("Horizontal", 18, 2, 23, 2))
sketch1.addConstraint(Sketcher.Constraint("Horizontal", 22, 2, 27, 2))
sketch1.addConstraint(Sketcher.Constraint("Horizontal", 12, 2, 29, 2))
sketch1.addConstraint(Sketcher.Constraint("Horizontal", 14, 2, 31, 2))
sketch1.addConstraint(Sketcher.Constraint("Horizontal", 16, 2, 33, 2))
sketch1.addConstraint(Sketcher.Constraint("Horizontal", 24, 2, 35, 2))
sketch1.addConstraint(Sketcher.Constraint("Horizontal", 28, 2, 39, 2))
sketch1.addConstraint(Sketcher.Constraint("Horizontal", 30, 2, 41, 2))
sketch1.addConstraint(Sketcher.Constraint("Horizontal", 32, 2, 43, 2))
sketch1.addConstraint(Sketcher.Constraint("Horizontal", 34, 2, 45, 2))
sketch1.addConstraint(Sketcher.Constraint("Horizontal", 51, 2, 58, 2))
sketch1.addConstraint(Sketcher.Constraint("Horizontal", 59, 2, 61, 2))
sketch1.addConstraint(Sketcher.Constraint("Horizontal", 62, 2, 65, 2))
sketch1.addConstraint(Sketcher.Constraint("Horizontal", 42, 2, 68, 2))
sketch1.addConstraint(Sketcher.Constraint("Horizontal", 40, 2, 70, 1))
sketch1.addConstraint(Sketcher.Constraint("Horizontal", 66, 2, 73, 2))
sketch1.addConstraint(Sketcher.Constraint("Horizontal", 78, 2, 81, 2))
sketch1.addConstraint(Sketcher.Constraint("Horizontal", 46, 2, 84, 2))
sketch1.addConstraint(Sketcher.Constraint("Horizontal", 44, 2, 86, 1))
sketch1.addConstraint(Sketcher.Constraint("Vertical", 52, 3, 53, 3))
sketch1.addConstraint(Sketcher.Constraint("Vertical", 9, 2, 12, 2))
sketch1.addConstraint(Sketcher.Constraint("Vertical", 11, 2, 14, 2))
sketch1.addConstraint(Sketcher.Constraint("Vertical", 13, 2, 16, 2))
sketch1.addConstraint(Sketcher.Constraint("Vertical", 27, 2, 30, 2))
sketch1.addConstraint(Sketcher.Constraint("Vertical", 29, 2, 32, 2))
sketch1.addConstraint(Sketcher.Constraint("Vertical", 31, 2, 34, 2))
sketch1.addConstraint(Sketcher.Constraint("Vertical", 39, 2, 42, 2))
sketch1.addConstraint(Sketcher.Constraint("Vertical", 41, 2, 44, 2))
sketch1.addConstraint(Sketcher.Constraint("Vertical", 86, 3, 50, 2))
sketch1.addConstraint(Sketcher.Constraint("Vertical", 71, 2, 84, 2))
sketch1.addConstraint(Sketcher.Constraint("Equal", 4, 10))
sketch1.addConstraint(Sketcher.Constraint("Equal", 6, 18))
sketch1.addConstraint(Sketcher.Constraint("Equal", 8, 20))
sketch1.addConstraint(Sketcher.Constraint("Equal", 16, 22))
sketch1.addConstraint(Sketcher.Constraint("Equal", 20, 24))
sketch1.addConstraint(Sketcher.Constraint("Equal", 24, 26))
sketch1.addConstraint(Sketcher.Constraint("Equal", 22, 28))
sketch1.addConstraint(Sketcher.Constraint("Equal", 18, 36))
sketch1.addConstraint(Sketcher.Constraint("Equal", 34, 40))
sketch1.addConstraint(Sketcher.Constraint("Equal", 62, 64))
sketch1.addConstraint(Sketcher.Constraint("Equal", 66, 72))
sketch1.addConstraint(Sketcher.Constraint("Equal", 78, 80))
sketch1.addConstraint(Sketcher.Constraint("Equal", 26, 5))
sketch1.addConstraint(Sketcher.Constraint("Equal", 5, 13))
sketch1.addConstraint(Sketcher.Constraint("Diameter", 88, 1.5))
sketch1.addConstraint(Sketcher.Constraint("DistanceX", 0, 1, 0, 2, 120.0))
sketch1.addConstraint(Sketcher.Constraint("DistanceX", 2, 2, 2, 1, 12.0))
sketch1.addConstraint(Sketcher.Constraint("DistanceX", 6, 2, 6, 1, 15.0))
sketch1.addConstraint(Sketcher.Constraint("DistanceX", 60, 2, 60, 1, 7.0))
sketch1.addConstraint(Sketcher.Constraint("DistanceY", 1, 1, 1, 2, 10.0))
sketch1.addConstraint(Sketcher.Constraint("DistanceY", 3, 1, 3, 2, 14.0))
sketch1.addConstraint(Sketcher.Constraint("DistanceX", 57, 2, -1, 1, 58.0))
sketch1.addConstraint(Sketcher.Constraint("DistanceX", 60, 2, -1, 1, 38.0))
sketch1.addConstraint(Sketcher.Constraint("DistanceX", 64, 2, -1, 1, 5.0))
sketch1.addConstraint(Sketcher.Constraint("DistanceX", 68, 2, -1, 1, 57.0))
sketch1.addConstraint(Sketcher.Constraint("DistanceX", -1, 1, 72, 2, 13.0))
sketch1.addConstraint(Sketcher.Constraint("DistanceX", -1, 1, 80, 2, 49.0))
sketch1.addConstraint(Sketcher.Constraint("DistanceX", 50, 2, 50, 1, 8.75))
sketch1.addConstraint(Sketcher.Constraint("DistanceX", 57, 2, 57, 1, 5.25))
sketch1.addConstraint(Sketcher.Constraint("DistanceY", -1, 1, 88, 3, 20.5))
sketch1.addConstraint(Sketcher.Constraint("DistanceX", 88, 3, -1, 1, 58.25))
pad1 = doc.addObject("PartDesign::Pad", "Pad")
body.addObject(pad1)
pad1.Profile = sketch1
pad1.Length = 3
doc.recompute()

fillet = doc.addObject("PartDesign::Fillet", "Fillet")
body.addObject(fillet)
fillet.Base = (pad1, edges_at(pad1, [(48, -1.5, 19), (48, -1.5, 5), (45, -1.5, 22)]))
fillet.Radius = 5

doc.recompute()
